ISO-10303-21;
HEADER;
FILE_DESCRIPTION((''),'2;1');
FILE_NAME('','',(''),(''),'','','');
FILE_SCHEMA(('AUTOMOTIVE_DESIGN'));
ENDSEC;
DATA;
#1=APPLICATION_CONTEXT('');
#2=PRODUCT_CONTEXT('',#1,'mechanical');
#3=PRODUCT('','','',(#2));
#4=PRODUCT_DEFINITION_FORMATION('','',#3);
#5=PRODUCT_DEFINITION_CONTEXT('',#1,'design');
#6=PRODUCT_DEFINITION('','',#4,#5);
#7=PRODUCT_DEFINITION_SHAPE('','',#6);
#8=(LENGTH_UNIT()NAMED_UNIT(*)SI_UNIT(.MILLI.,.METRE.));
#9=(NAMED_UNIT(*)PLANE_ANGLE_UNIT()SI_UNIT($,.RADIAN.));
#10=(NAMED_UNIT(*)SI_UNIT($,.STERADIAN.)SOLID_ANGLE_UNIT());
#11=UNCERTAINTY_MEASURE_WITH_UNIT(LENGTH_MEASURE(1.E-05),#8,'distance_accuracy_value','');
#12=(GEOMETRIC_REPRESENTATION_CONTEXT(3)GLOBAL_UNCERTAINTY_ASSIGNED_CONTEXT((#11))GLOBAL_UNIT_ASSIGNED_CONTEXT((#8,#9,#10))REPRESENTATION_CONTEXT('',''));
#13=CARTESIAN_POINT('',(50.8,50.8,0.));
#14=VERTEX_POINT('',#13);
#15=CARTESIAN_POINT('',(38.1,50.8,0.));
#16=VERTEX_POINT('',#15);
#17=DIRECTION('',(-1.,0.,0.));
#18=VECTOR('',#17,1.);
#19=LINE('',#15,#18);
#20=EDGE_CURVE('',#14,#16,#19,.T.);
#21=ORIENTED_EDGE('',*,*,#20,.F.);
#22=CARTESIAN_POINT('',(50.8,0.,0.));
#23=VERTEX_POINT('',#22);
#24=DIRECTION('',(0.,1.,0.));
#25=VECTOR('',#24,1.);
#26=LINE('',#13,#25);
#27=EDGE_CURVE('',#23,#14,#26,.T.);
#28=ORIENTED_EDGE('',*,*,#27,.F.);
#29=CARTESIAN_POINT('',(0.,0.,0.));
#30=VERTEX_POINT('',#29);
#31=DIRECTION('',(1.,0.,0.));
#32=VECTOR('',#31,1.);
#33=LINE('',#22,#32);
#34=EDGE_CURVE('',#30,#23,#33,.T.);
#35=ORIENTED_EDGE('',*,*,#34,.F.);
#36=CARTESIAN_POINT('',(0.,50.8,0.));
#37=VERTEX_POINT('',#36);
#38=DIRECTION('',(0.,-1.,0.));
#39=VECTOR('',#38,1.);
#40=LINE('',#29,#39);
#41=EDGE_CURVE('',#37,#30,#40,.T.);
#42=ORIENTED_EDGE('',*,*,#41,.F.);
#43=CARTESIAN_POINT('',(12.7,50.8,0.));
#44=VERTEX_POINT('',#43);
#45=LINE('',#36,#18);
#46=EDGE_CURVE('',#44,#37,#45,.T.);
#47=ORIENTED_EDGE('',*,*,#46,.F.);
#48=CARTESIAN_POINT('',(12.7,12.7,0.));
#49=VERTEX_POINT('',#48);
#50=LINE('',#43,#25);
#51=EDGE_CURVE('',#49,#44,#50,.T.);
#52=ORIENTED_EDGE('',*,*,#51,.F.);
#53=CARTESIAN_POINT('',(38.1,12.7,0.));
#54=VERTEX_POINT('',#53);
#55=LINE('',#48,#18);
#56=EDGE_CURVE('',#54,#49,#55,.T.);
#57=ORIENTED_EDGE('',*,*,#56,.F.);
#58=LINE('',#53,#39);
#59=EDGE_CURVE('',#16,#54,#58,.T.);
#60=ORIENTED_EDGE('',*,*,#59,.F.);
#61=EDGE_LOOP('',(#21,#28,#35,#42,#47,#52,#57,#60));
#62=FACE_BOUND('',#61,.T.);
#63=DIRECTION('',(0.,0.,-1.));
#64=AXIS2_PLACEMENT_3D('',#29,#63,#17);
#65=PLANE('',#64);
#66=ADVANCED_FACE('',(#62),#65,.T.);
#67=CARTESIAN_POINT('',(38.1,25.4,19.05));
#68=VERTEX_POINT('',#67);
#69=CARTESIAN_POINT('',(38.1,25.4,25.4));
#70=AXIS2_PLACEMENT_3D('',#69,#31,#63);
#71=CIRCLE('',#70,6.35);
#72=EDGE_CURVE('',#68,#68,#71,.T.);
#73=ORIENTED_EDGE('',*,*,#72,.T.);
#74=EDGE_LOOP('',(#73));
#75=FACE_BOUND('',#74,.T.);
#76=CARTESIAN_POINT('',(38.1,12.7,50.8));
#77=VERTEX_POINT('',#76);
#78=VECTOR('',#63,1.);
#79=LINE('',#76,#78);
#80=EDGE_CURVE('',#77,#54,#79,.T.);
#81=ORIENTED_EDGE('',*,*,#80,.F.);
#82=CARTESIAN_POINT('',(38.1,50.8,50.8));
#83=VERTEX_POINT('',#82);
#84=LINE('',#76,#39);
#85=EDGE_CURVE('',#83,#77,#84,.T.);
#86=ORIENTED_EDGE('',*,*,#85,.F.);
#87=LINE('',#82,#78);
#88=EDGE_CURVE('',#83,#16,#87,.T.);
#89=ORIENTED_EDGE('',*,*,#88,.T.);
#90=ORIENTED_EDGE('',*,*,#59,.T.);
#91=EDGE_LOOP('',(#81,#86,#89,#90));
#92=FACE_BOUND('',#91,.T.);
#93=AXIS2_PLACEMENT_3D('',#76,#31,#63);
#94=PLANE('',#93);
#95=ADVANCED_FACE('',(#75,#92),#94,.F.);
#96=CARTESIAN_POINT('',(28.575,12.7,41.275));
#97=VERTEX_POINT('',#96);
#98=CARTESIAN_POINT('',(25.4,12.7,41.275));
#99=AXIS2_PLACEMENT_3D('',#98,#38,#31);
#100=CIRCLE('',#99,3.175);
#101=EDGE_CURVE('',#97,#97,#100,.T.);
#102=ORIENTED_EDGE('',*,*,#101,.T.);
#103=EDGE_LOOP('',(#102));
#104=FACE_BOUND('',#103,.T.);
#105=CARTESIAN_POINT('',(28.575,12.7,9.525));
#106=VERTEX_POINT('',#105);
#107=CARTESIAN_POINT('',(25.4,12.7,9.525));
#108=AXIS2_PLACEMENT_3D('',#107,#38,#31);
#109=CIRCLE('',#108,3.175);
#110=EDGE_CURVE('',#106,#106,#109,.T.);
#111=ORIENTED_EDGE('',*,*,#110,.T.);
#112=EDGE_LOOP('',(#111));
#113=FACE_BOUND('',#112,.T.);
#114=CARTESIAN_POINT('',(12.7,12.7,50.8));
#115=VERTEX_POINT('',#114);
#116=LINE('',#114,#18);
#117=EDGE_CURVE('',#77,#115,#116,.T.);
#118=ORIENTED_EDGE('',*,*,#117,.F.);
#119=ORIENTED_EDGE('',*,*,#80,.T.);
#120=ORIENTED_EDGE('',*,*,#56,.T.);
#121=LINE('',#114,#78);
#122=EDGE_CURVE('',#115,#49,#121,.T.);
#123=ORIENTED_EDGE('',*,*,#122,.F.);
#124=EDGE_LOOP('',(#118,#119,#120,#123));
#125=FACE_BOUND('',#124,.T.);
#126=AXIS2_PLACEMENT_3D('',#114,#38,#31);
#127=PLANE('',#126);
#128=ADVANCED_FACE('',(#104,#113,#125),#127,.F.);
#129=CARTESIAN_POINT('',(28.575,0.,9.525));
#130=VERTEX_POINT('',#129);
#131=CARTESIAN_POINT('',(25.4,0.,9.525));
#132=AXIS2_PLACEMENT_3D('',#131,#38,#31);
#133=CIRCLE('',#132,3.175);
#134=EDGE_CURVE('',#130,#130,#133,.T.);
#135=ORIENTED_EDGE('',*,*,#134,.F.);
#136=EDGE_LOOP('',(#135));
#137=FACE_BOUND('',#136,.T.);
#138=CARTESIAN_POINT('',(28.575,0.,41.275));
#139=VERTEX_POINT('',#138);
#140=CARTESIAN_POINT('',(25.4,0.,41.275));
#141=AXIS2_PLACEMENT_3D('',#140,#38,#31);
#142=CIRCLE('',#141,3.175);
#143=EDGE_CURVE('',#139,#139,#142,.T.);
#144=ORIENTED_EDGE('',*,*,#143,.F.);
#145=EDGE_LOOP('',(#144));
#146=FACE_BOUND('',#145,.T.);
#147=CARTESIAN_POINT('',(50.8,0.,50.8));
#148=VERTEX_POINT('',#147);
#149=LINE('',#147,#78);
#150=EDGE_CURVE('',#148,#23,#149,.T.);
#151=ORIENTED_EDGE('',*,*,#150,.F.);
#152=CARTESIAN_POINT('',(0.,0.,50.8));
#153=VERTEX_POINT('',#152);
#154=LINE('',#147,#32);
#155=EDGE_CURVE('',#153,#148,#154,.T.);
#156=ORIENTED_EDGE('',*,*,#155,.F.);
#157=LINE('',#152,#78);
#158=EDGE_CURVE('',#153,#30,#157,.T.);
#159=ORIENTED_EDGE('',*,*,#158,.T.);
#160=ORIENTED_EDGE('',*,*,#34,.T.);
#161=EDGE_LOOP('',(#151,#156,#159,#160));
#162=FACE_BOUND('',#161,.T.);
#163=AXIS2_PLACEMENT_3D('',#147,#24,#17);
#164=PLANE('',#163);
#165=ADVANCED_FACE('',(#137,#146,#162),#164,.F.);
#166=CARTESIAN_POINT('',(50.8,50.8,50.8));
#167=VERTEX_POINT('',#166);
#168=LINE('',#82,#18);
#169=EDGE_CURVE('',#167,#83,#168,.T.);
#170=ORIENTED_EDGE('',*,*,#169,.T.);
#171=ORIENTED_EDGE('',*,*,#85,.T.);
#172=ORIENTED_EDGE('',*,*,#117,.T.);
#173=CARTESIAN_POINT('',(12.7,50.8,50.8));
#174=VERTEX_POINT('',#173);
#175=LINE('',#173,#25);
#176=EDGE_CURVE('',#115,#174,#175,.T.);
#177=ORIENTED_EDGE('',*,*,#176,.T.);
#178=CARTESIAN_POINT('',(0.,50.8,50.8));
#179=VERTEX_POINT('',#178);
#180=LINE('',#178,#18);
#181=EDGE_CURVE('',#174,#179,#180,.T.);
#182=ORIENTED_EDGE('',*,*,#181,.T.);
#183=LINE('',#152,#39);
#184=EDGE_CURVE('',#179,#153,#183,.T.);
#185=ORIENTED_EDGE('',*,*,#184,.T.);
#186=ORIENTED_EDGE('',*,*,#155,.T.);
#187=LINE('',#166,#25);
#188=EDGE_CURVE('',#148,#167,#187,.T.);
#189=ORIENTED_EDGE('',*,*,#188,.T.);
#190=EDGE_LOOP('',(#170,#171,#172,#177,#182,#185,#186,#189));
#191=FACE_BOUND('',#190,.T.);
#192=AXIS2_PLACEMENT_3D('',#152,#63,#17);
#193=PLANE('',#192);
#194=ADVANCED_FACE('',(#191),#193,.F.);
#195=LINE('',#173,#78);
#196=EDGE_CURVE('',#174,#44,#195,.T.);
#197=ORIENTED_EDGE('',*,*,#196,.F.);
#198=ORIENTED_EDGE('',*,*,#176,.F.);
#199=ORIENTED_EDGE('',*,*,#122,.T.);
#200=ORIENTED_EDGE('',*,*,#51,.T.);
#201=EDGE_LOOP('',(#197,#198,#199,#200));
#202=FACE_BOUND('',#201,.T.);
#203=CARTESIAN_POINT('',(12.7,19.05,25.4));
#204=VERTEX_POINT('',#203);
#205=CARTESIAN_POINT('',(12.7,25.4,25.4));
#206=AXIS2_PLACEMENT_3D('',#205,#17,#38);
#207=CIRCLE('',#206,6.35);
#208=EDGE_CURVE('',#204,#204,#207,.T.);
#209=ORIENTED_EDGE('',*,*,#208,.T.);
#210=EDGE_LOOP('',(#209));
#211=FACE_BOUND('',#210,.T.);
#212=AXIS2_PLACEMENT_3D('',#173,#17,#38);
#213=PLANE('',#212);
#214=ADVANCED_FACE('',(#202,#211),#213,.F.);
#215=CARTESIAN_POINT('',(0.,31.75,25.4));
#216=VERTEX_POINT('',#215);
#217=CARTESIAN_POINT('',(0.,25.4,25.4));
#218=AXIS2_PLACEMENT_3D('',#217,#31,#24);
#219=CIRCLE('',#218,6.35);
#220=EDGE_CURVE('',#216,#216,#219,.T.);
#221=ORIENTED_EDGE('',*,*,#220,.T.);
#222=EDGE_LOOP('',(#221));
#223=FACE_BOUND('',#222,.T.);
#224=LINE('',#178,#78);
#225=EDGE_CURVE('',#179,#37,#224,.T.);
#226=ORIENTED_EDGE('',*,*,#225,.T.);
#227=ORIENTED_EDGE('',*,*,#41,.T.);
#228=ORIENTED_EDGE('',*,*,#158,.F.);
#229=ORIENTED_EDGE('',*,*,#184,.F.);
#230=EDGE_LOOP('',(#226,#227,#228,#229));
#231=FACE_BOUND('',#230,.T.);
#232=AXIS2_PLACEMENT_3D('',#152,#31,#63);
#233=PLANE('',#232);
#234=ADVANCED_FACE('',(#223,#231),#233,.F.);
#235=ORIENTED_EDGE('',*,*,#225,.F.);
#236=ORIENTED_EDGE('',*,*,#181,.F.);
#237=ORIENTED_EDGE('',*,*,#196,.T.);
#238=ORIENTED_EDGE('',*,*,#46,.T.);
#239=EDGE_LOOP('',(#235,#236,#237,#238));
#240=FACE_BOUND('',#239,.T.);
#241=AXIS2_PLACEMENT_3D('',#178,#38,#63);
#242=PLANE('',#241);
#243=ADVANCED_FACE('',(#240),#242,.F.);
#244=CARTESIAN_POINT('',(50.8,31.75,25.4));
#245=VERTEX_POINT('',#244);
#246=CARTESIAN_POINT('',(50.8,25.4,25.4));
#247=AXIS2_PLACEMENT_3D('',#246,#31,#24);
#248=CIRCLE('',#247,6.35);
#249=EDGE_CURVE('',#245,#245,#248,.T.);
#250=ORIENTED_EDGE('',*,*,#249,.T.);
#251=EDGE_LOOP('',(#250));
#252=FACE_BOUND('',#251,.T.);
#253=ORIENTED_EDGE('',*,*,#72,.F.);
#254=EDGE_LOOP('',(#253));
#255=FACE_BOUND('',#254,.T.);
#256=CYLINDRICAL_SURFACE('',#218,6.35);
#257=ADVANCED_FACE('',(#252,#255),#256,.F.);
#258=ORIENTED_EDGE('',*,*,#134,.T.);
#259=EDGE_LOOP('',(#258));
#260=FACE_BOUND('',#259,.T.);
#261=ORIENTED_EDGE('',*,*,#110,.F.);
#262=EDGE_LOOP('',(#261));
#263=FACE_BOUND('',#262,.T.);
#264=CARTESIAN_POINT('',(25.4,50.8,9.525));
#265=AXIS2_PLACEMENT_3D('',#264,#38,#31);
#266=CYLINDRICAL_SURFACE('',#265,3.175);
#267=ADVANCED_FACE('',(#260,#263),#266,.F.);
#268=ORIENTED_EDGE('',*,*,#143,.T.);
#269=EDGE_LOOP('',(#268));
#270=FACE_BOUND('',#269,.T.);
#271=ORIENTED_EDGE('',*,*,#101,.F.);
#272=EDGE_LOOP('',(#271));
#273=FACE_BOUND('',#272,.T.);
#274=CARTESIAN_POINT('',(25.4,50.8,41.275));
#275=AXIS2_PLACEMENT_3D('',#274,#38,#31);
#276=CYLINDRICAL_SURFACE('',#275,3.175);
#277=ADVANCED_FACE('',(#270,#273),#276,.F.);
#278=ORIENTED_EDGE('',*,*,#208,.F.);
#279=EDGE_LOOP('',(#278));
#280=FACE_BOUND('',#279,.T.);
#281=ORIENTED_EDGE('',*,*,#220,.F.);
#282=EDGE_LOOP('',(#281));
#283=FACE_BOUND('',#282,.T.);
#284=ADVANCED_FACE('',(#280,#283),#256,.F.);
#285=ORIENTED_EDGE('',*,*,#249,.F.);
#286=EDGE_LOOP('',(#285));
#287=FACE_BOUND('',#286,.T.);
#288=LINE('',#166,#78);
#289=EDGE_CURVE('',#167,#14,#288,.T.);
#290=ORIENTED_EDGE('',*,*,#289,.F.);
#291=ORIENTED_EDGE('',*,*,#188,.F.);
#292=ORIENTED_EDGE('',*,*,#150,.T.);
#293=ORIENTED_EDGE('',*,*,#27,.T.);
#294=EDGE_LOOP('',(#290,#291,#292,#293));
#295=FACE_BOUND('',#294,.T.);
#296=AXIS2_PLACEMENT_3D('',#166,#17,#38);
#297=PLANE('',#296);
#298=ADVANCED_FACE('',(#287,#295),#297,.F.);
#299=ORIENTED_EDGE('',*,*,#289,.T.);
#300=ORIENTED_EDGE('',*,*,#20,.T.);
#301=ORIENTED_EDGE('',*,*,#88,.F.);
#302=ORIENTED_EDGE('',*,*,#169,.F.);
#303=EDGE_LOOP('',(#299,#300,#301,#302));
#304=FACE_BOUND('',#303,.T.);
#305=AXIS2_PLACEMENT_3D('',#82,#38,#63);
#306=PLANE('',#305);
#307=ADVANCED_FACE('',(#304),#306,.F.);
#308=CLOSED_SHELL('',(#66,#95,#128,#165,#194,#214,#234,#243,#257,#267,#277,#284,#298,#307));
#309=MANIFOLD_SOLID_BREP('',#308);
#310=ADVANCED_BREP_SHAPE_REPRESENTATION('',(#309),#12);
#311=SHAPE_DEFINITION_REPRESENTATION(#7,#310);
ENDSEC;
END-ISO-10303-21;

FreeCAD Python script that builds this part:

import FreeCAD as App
import Part
import Sketcher

V = App.Vector
Q = App.Units.Quantity

doc = App.newDocument("Part")
body = doc.addObject("PartDesign::Body", "Body")

sketch1 = body.newObject("Sketcher::SketchObject", "Sketch")
sketch1.AttachmentSupport = (doc.getObject("XY_Plane"), [""])
sketch1.MapMode = "FlatFace"
sketch1.addGeometry(Part.LineSegment(V(0, 51, 0), V(0, 0, 0)), False)
sketch1.addGeometry(Part.LineSegment(V(0, 0, 0), V(51, 0, 0)), False)
sketch1.addGeometry(Part.LineSegment(V(51, 0, 0), V(51, 51, 0)), False)
sketch1.addGeometry(Part.LineSegment(V(51, 51, 0), V(38, 51, 0)), False)
sketch1.addGeometry(Part.LineSegment(V(38, 51, 0), V(38, 13, 0)), False)
sketch1.addGeometry(Part.LineSegment(V(38, 13, 0), V(13, 13, 0)), False)
sketch1.addGeometry(Part.LineSegment(V(13, 13, 0), V(13, 51, 0)), False)
sketch1.addGeometry(Part.LineSegment(V(13, 51, 0), V(0, 51, 0)), False)
sketch1.addConstraint(Sketcher.Constraint("Coincident", 0, 2, 1, 1))
sketch1.addConstraint(Sketcher.Constraint("Coincident", 1, 2, 2, 1))
sketch1.addConstraint(Sketcher.Constraint("Coincident", 2, 2, 3, 1))
sketch1.addConstraint(Sketcher.Constraint("Coincident", 3, 2, 4, 1))
sketch1.addConstraint(Sketcher.Constraint("Coincident", 4, 2, 5, 1))
sketch1.addConstraint(Sketcher.Constraint("Coincident", 5, 2, 6, 1))
sketch1.addConstraint(Sketcher.Constraint("Coincident", 6, 2, 7, 1))
sketch1.addConstraint(Sketcher.Constraint("Coincident", 7, 2, 0, 1))
sketch1.addConstraint(Sketcher.Constraint("Vertical", 0))
sketch1.addConstraint(Sketcher.Constraint("Horizontal", 1))
sketch1.addConstraint(Sketcher.Constraint("Vertical", 2))
sketch1.addConstraint(Sketcher.Constraint("Horizontal", 3))
sketch1.addConstraint(Sketcher.Constraint("Vertical", 4))
sketch1.addConstraint(Sketcher.Constraint("Horizontal", 5))
sketch1.addConstraint(Sketcher.Constraint("Vertical", 6))
sketch1.addConstraint(Sketcher.Constraint("Horizontal", 7))
sketch1.addConstraint(Sketcher.Constraint("Coincident", 0, 2, -1, 1))
sketch1.addConstraint(Sketcher.Constraint("Horizontal", 3, 2, 6, 2))
sketch1.addConstraint(Sketcher.Constraint("Equal", 3, 7))
sketch1.addConstraint(Sketcher.Constraint("Equal", 1, 0))
sketch1.addConstraint(Sketcher.Constraint("DistanceX", 1, 1, 1, 2, Q("2 in")))
sketch1.addConstraint(Sketcher.Constraint("DistanceX", 5, 2, 5, 1, Q("1 in")))
sketch1.addConstraint(Sketcher.Constraint("DistanceY", 4, 2, 4, 1, Q("1.5 in")))
pad1 = body.newObject("PartDesign::Pad", "Pad")
pad1.Profile = sketch1
pad1.Length = Q("2 in")

sketch2 = body.newObject("Sketcher::SketchObject", "Sketch001")
sketch2.AttachmentSupport = (doc.getObject("XZ_Plane"), [""])
sketch2.MapMode = "FlatFace"
sketch2.addGeometry(Part.Circle(V(25.4, 41.3, 0), V(0, 0, 1), 3.2), False)
sketch2.addGeometry(Part.Circle(V(25.4, 9.5, 0), V(0, 0, 1), 3.2), False)
sketch2.addConstraint(Sketcher.Constraint("Equal", 0, 1))
sketch2.addConstraint(Sketcher.Constraint("Vertical", 0, 3, 1, 3))
sketch2.addConstraint(Sketcher.Constraint("Diameter", 0, Q("0.25 in")))
sketch2.addConstraint(Sketcher.Constraint("DistanceX", -1, 1, 0, 3, Q("1 in")))
sketch2.addConstraint(Sketcher.Constraint("DistanceY", 1, 3, 0, 3, Q("1.25 in")))
sketch2.addConstraint(Sketcher.Constraint("DistanceY", -1, 1, 0, 3, Q("1.625 in")))
pocket1 = body.newObject("PartDesign::Pocket", "Pocket")
pocket1.Profile = sketch2
pocket1.Type = "ThroughAll"

sketch3 = body.newObject("Sketcher::SketchObject", "Sketch002")
sketch3.AttachmentSupport = (doc.getObject("YZ_Plane"), [""])
sketch3.MapMode = "FlatFace"
sketch3.AttachmentOffset = App.Placement(V(0, 0, 2 * 25.4), App.Rotation())
sketch3.addGeometry(Part.Circle(V(25, 25, 0), V(0, 0, 1), 6), False)
sketch3.addConstraint(Sketcher.Constraint("Diameter", 0, Q("0.5 in")))
sketch3.addConstraint(Sketcher.Constraint("DistanceX", -1, 1, 0, 3, Q("1 in")))
sketch3.addConstraint(Sketcher.Constraint("DistanceY", -1, 1, 0, 3, Q("1 in")))
pocket2 = body.newObject("PartDesign::Pocket", "Pocket001")
pocket2.Profile = sketch3
pocket2.Type = "ThroughAll"

doc.recompute()
